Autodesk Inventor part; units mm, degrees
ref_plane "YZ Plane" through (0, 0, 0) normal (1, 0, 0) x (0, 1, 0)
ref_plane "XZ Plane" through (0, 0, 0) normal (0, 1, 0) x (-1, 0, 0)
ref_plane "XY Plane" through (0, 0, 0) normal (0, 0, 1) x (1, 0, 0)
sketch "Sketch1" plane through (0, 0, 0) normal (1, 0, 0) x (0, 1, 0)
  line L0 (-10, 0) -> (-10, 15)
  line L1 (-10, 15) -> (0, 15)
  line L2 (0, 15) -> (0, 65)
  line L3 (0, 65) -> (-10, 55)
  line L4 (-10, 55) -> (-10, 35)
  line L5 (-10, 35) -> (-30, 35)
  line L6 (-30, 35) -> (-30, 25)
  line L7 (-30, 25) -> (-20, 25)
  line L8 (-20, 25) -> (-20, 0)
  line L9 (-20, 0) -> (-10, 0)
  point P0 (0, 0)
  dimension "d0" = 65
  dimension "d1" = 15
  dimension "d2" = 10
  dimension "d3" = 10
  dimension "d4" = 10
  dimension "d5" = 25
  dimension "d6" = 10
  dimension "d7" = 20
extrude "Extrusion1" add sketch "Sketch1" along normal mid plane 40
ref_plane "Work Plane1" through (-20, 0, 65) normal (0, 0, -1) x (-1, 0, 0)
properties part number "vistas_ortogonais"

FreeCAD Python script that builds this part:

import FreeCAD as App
import Part
import Sketcher
from FreeCAD import Vector
Q = App.Units.Quantity


def add_polygon(sketch, points):
    """Adds a closed chain of lines whose ends are joined by coincident constraints."""
    first, n = sketch.GeometryCount, len(points)
    for a, b in zip(points, points[1:] + points[:1]):
        sketch.addGeometry(Part.LineSegment(App.Vector(*a, 0), App.Vector(*b, 0)), False)
    for i in range(n):
        sketch.addConstraint(Sketcher.Constraint("Coincident", first + i, 2, first + (i + 1) % n, 1))

doc = App.newDocument("Part")
body = doc.addObject("PartDesign::Body", "Body")

sketch1 = body.newObject("Sketcher::SketchObject", "Sketch")
sketch1.AttachmentSupport = (doc.getObject("YZ_Plane"), [""])
sketch1.MapMode = "FlatFace"
add_polygon(sketch1, [(-20, 0), (-10, 0), (-10, 15), (0, 15), (0, 65), (-10, 55), (-10, 35), (-30, 35), (-30, 25), (-20, 25)])
sketch1.addConstraint(Sketcher.Constraint("Horizontal", 0))
sketch1.addConstraint(Sketcher.Constraint("Vertical", 1))
sketch1.addConstraint(Sketcher.Constraint("Horizontal", 2))
sketch1.addConstraint(Sketcher.Constraint("Vertical", 3))
sketch1.addConstraint(Sketcher.Constraint("Vertical", 5))
sketch1.addConstraint(Sketcher.Constraint("Horizontal", 6))
sketch1.addConstraint(Sketcher.Constraint("Vertical", 7))
sketch1.addConstraint(Sketcher.Constraint("Horizontal", 8))
sketch1.addConstraint(Sketcher.Constraint("Vertical", 9))
sketch1.addConstraint(Sketcher.Constraint("PointOnObject", 0, 2, -1))
sketch1.addConstraint(Sketcher.Constraint("PointOnObject", 2, 2, -2))
sketch1.addConstraint(Sketcher.Constraint("Vertical", 1, 2, 4, 2))
sketch1.addConstraint(Sketcher.Constraint("Equal", 0, 2))
sketch1.addConstraint(Sketcher.Constraint("Equal", 2, 8))
sketch1.addConstraint(Sketcher.Constraint("Equal", 6, 5))
sketch1.addConstraint(Sketcher.Constraint("Equal", 8, 7))
sketch1.addConstraint(Sketcher.Constraint("DistanceX", 0, 1, 0, 2, Q("10 mm")))
sketch1.addConstraint(Sketcher.Constraint("DistanceY", 1, 1, 1, 2, Q("15 mm")))
sketch1.addConstraint(Sketcher.Constraint("DistanceY", 9, 2, 9, 1, Q("25 mm")))
sketch1.addConstraint(Sketcher.Constraint("DistanceY", -1, 1, 3, 2, Q("65 mm")))
pad1 = body.newObject("PartDesign::Pad", "Pad")
pad1.Profile = sketch1
pad1.Length = 40
pad1.Midplane = True

doc.recompute()
